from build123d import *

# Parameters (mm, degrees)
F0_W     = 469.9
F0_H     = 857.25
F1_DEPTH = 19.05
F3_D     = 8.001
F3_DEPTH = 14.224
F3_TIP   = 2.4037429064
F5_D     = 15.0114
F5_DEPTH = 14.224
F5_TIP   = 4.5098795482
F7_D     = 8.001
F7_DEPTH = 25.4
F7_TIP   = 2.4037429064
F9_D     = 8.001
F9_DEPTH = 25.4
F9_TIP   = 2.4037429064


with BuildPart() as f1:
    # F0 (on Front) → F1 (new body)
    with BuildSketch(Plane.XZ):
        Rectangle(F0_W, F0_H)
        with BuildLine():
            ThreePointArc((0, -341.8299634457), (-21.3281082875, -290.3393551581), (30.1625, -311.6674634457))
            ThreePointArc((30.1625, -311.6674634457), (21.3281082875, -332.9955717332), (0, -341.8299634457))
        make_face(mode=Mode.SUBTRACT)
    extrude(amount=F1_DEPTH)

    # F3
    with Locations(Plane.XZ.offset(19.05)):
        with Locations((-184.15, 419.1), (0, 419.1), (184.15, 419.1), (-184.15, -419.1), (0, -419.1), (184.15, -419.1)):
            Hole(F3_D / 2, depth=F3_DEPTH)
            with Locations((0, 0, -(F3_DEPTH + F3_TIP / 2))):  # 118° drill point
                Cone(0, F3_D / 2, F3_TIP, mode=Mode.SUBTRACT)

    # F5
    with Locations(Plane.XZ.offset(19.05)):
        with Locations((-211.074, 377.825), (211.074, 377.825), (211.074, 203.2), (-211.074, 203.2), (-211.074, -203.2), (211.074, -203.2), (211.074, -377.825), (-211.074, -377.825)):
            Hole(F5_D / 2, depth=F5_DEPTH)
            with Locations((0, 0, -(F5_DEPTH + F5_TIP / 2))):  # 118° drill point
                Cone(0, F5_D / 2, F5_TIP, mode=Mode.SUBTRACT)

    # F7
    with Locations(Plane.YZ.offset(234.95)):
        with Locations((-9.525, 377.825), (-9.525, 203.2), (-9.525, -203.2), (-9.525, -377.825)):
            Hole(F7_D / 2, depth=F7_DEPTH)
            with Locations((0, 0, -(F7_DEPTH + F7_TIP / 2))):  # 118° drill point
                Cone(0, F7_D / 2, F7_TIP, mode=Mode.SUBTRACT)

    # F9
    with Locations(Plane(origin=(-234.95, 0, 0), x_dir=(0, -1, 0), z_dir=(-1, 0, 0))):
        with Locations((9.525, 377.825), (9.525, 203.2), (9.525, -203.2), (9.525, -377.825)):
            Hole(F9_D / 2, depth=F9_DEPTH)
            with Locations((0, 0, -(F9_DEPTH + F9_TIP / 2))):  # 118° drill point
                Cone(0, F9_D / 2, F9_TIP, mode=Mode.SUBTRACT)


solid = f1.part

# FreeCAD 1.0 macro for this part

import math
import FreeCAD as App
import Part
import Sketcher

V = App.Vector
Q = App.Units.Quantity


def add_polygon(sketch, points):
    """Adds a closed chain of lines whose ends are joined by coincident constraints."""
    first, n = sketch.GeometryCount, len(points)
    for a, b in zip(points, points[1:] + points[:1]):
        sketch.addGeometry(Part.LineSegment(App.Vector(*a, 0), App.Vector(*b, 0)), False)
    for i in range(n):
        sketch.addConstraint(Sketcher.Constraint("Coincident", first + i, 2, first + (i + 1) % n, 1))

doc = App.newDocument("Part")
body = doc.addObject("PartDesign::Body", "Body")

sketch1 = body.newObject("Sketcher::SketchObject", "Sketch")
sketch1.AttachmentSupport = (doc.getObject("XZ_Plane"), [""])
sketch1.MapMode = "FlatFace"
add_polygon(sketch1, [(-234.95, 428.625), (-234.95, -428.625), (234.95, -428.625), (234.95, 428.625)])
sketch1.addGeometry(Part.ArcOfCircle(Part.Circle(V(0, -311.667463, 0), V(0, 0, 1), 30.1625), math.radians(-90), math.radians(0)), False)
sketch1.addGeometry(Part.ArcOfCircle(Part.Circle(V(0, -311.667463, 0), V(0, 0, 1), 30.1625), math.radians(0), math.radians(270)), False)
sketch1.addConstraint(Sketcher.Constraint("Tangent", 4, 1, 5, 2))
sketch1.addConstraint(Sketcher.Constraint("Coincident", 5, 1, 4, 2))
sketch1.addConstraint(Sketcher.Constraint("Vertical", 0))
sketch1.addConstraint(Sketcher.Constraint("Horizontal", 1))
sketch1.addConstraint(Sketcher.Constraint("Vertical", 2))
sketch1.addConstraint(Sketcher.Constraint("Horizontal", 3))
sketch1.addConstraint(Sketcher.Constraint("Symmetric", 0, 2, 2, 2, -1, 1))
sketch1.addConstraint(Sketcher.Constraint("PointOnObject", 4, 3, -2))
sketch1.addConstraint(Sketcher.Constraint("PointOnObject", 4, 1, -2))
sketch1.addConstraint(Sketcher.Constraint("Horizontal", 4, 3, 5, 1))
sketch1.addConstraint(Sketcher.Constraint("DistanceX", 1, 1, 1, 2, Q("18.5 in")))
sketch1.addConstraint(Sketcher.Constraint("Radius", 4, Q("1.1875 in")))
sketch1.addConstraint(Sketcher.Constraint("DistanceY", 0, 2, 0, 1, Q("33.75 in")))
sketch1.addConstraint(Sketcher.Constraint("DistanceY", 4, 3, -1, 1, Q("311.667463 mm")))
pad1 = body.newObject("PartDesign::Pad", "Pad")
pad1.Profile = sketch1
pad1.Length = Q("0.75 in")

sketch2 = body.newObject("Sketcher::SketchObject", "Sketch001")
sketch2.AttachmentSupport = (doc.getObject("XZ_Plane"), [""])
sketch2.MapMode = "FlatFace"
sketch2.AttachmentOffset = App.Placement(V(0, 0, 0.75 * 25.4), App.Rotation())
sketch2.addGeometry(Part.Circle(V(-184.15, 419.1, 0), V(0, 0, 1), 4.0005), False)
sketch2.addGeometry(Part.Circle(V(0, 419.1, 0), V(0, 0, 1), 4.0005), False)
sketch2.addGeometry(Part.Circle(V(184.15, 419.1, 0), V(0, 0, 1), 4.0005), False)
sketch2.addGeometry(Part.Circle(V(-184.15, -419.1, 0), V(0, 0, 1), 4.0005), False)
sketch2.addGeometry(Part.Circle(V(0, -419.1, 0), V(0, 0, 1), 4.0005), False)
sketch2.addGeometry(Part.Circle(V(184.15, -419.1, 0), V(0, 0, 1), 4.0005), False)
sketch2.addConstraint(Sketcher.Constraint("Equal", 0, 1))
sketch2.addConstraint(Sketcher.Constraint("Equal", 1, 2))
sketch2.addConstraint(Sketcher.Constraint("Equal", 2, 3))
sketch2.addConstraint(Sketcher.Constraint("Equal", 3, 4))
sketch2.addConstraint(Sketcher.Constraint("Equal", 4, 5))
sketch2.addConstraint(Sketcher.Constraint("Symmetric", 2, 3, 3, 3, -1, 1))
sketch2.addConstraint(Sketcher.Constraint("Symmetric", 1, 3, 4, 3, -1, 1))
sketch2.addConstraint(Sketcher.Constraint("Symmetric", 0, 3, 5, 3, -1, 1))
sketch2.addConstraint(Sketcher.Constraint("Symmetric", 0, 3, 2, 3, -2))
sketch2.addConstraint(Sketcher.Constraint("PointOnObject", 1, 3, -2))
sketch2.addConstraint(Sketcher.Constraint("Horizontal", 0, 3, 1, 3))
sketch2.addConstraint(Sketcher.Constraint("Diameter", 0, Q("0.315 in")))
sketch2.addConstraint(Sketcher.Constraint("DistanceY", 3, 3, 0, 3, Q("33 in")))
sketch2.addConstraint(Sketcher.Constraint("DistanceX", 0, 3, 2, 3, Q("14.5 in")))
doc.recompute()
hole = body.newObject("PartDesign::Hole", "Hole")
hole.Profile = sketch2
hole.ThreadType = "None"
hole.Diameter = Q("0.315 in")
hole.DepthType = "Dimension"
hole.Depth = Q("0.56 in")
hole.DrillPoint = "Angled"
hole.DrillPointAngle = 118

sketch3 = body.newObject("Sketcher::SketchObject", "Sketch002")
sketch3.AttachmentSupport = (doc.getObject("XZ_Plane"), [""])
sketch3.MapMode = "FlatFace"
sketch3.AttachmentOffset = App.Placement(V(0, 0, 0.75 * 25.4), App.Rotation())
sketch3.addGeometry(Part.Circle(V(-211.074, 377.825, 0), V(0, 0, 1), 7.5057), False)
sketch3.addGeometry(Part.Circle(V(211.074, 377.825, 0), V(0, 0, 1), 7.5057), False)
sketch3.addGeometry(Part.Circle(V(211.074, 203.2, 0), V(0, 0, 1), 7.5057), False)
sketch3.addGeometry(Part.Circle(V(-211.074, 203.2, 0), V(0, 0, 1), 7.5057), False)
sketch3.addGeometry(Part.Circle(V(-211.074, -203.2, 0), V(0, 0, 1), 7.5057), False)
sketch3.addGeometry(Part.Circle(V(211.074, -203.2, 0), V(0, 0, 1), 7.5057), False)
sketch3.addGeometry(Part.Circle(V(211.074, -377.825, 0), V(0, 0, 1), 7.5057), False)
sketch3.addGeometry(Part.Circle(V(-211.074, -377.825, 0), V(0, 0, 1), 7.5057), False)
sketch3.addConstraint(Sketcher.Constraint("Equal", 0, 1))
sketch3.addConstraint(Sketcher.Constraint("Equal", 1, 2))
sketch3.addConstraint(Sketcher.Constraint("Equal", 2, 3))
sketch3.addConstraint(Sketcher.Constraint("Equal", 3, 4))
sketch3.addConstraint(Sketcher.Constraint("Equal", 4, 5))
sketch3.addConstraint(Sketcher.Constraint("Equal", 5, 6))
sketch3.addConstraint(Sketcher.Constraint("Equal", 6, 7))
sketch3.addConstraint(Sketcher.Constraint("Symmetric", 2, 3, 4, 3, -1, 1))
sketch3.addConstraint(Sketcher.Constraint("Symmetric", 3, 3, 5, 3, -1, 1))
sketch3.addConstraint(Sketcher.Constraint("Symmetric", 0, 3, 6, 3, -1, 1))
sketch3.addConstraint(Sketcher.Constraint("Symmetric", 1, 3, 7, 3, -1, 1))
sketch3.addConstraint(Sketcher.Constraint("Symmetric", 0, 3, 1, 3, -2))
sketch3.addConstraint(Sketcher.Constraint("Symmetric", 2, 3, 3, 3, -2))
sketch3.addConstraint(Sketcher.Constraint("Vertical", 1, 3, 2, 3))
sketch3.addConstraint(Sketcher.Constraint("Diameter", 0, Q("0.591 in")))
sketch3.addConstraint(Sketcher.Constraint("DistanceY", -1, 1, 2, 3, Q("8 in")))
sketch3.addConstraint(Sketcher.Constraint("DistanceX", 0, 3, -1, 1, Q("8.31 in")))
sketch3.addConstraint(Sketcher.Constraint("DistanceY", 6, 3, 1, 3, Q("29.75 in")))
doc.recompute()
hole2 = body.newObject("PartDesign::Hole", "Hole001")
hole2.Profile = sketch3
hole2.ThreadType = "None"
hole2.Diameter = Q("0.591 in")
hole2.DepthType = "Dimension"
hole2.Depth = Q("0.56 in")
hole2.DrillPoint = "Angled"
hole2.DrillPointAngle = 118

sketch4 = body.newObject("Sketcher::SketchObject", "Sketch003")
sketch4.AttachmentSupport = (doc.getObject("YZ_Plane"), [""])
sketch4.MapMode = "FlatFace"
sketch4.AttachmentOffset = App.Placement(V(0, 0, 9.25 * 25.4), App.Rotation())
sketch4.addGeometry(Part.Circle(V(-9.525, 377.825, 0), V(0, 0, 1), 4.0005), False)
sketch4.addGeometry(Part.Circle(V(-9.525, 203.2, 0), V(0, 0, 1), 4.0005), False)
sketch4.addGeometry(Part.Circle(V(-9.525, -203.2, 0), V(0, 0, 1), 4.0005), False)
sketch4.addGeometry(Part.Circle(V(-9.525, -377.825, 0), V(0, 0, 1), 4.0005), False)
sketch4.addConstraint(Sketcher.Constraint("Equal", 0, 1))
sketch4.addConstraint(Sketcher.Constraint("Equal", 1, 2))
sketch4.addConstraint(Sketcher.Constraint("Equal", 2, 3))
sketch4.addConstraint(Sketcher.Constraint("Symmetric", 1, 3, 2, 3, -1))
sketch4.addConstraint(Sketcher.Constraint("Symmetric", 0, 3, 3, 3, -1))
sketch4.addConstraint(Sketcher.Constraint("Vertical", 0, 3, 1, 3))
sketch4.addConstraint(Sketcher.Constraint("Diameter", 0, Q("0.315 in")))
sketch4.addConstraint(Sketcher.Constraint("DistanceY", -1, 1, 1, 3, Q("8 in")))
sketch4.addConstraint(Sketcher.Constraint("DistanceY", 3, 3, 0, 3, Q("29.75 in")))
sketch4.addConstraint(Sketcher.Constraint("DistanceX", 0, 3, -1, 1, Q("0.375 in")))
doc.recompute()
hole3 = body.newObject("PartDesign::Hole", "Hole002")
hole3.Profile = sketch4
hole3.ThreadType = "None"
hole3.Diameter = Q("0.315 in")
hole3.DepthType = "Dimension"
hole3.Depth = Q("1 in")
hole3.DrillPoint = "Angled"
hole3.DrillPointAngle = 118

sketch5 = body.newObject("Sketcher::SketchObject", "Sketch004")
sketch5.AttachmentSupport = (doc.getObject("YZ_Plane"), [""])
sketch5.MapMode = "FlatFace"
sketch5.AttachmentOffset = App.Placement(V(0, 0, -9.25 * 25.4), App.Rotation())
sketch5.addGeometry(Part.Circle(V(-9.525, 377.825, 0), V(0, 0, 1), 4.0005), False)
sketch5.addGeometry(Part.Circle(V(-9.525, 203.2, 0), V(0, 0, 1), 4.0005), False)
sketch5.addGeometry(Part.Circle(V(-9.525, -203.2, 0), V(0, 0, 1), 4.0005), False)
sketch5.addGeometry(Part.Circle(V(-9.525, -377.825, 0), V(0, 0, 1), 4.0005), False)
sketch5.addConstraint(Sketcher.Constraint("Equal", 0, 1))
sketch5.addConstraint(Sketcher.Constraint("Equal", 1, 2))
sketch5.addConstraint(Sketcher.Constraint("Equal", 2, 3))
sketch5.addConstraint(Sketcher.Constraint("Symmetric", 1, 3, 2, 3, -1))
sketch5.addConstraint(Sketcher.Constraint("Symmetric", 0, 3, 3, 3, -1))
sketch5.addConstraint(Sketcher.Constraint("Vertical", 0, 3, 1, 3))
sketch5.addConstraint(Sketcher.Constraint("Diameter", 0, Q("0.315 in")))
sketch5.addConstraint(Sketcher.Constraint("DistanceY", -1, 1, 1, 3, Q("8 in")))
sketch5.addConstraint(Sketcher.Constraint("DistanceY", 3, 3, 0, 3, Q("29.75 in")))
sketch5.addConstraint(Sketcher.Constraint("DistanceX", 0, 3, -1, 1, Q("0.375 in")))
doc.recompute()
hole4 = body.newObject("PartDesign::Hole", "Hole003")
hole4.Profile = sketch5
hole4.ThreadType = "None"
hole4.Diameter = Q("0.315 in")
hole4.DepthType = "Dimension"
hole4.Depth = Q("1 in")
hole4.DrillPoint = "Angled"
hole4.DrillPointAngle = 118
hole4.Reversed = True

doc.recompute()
